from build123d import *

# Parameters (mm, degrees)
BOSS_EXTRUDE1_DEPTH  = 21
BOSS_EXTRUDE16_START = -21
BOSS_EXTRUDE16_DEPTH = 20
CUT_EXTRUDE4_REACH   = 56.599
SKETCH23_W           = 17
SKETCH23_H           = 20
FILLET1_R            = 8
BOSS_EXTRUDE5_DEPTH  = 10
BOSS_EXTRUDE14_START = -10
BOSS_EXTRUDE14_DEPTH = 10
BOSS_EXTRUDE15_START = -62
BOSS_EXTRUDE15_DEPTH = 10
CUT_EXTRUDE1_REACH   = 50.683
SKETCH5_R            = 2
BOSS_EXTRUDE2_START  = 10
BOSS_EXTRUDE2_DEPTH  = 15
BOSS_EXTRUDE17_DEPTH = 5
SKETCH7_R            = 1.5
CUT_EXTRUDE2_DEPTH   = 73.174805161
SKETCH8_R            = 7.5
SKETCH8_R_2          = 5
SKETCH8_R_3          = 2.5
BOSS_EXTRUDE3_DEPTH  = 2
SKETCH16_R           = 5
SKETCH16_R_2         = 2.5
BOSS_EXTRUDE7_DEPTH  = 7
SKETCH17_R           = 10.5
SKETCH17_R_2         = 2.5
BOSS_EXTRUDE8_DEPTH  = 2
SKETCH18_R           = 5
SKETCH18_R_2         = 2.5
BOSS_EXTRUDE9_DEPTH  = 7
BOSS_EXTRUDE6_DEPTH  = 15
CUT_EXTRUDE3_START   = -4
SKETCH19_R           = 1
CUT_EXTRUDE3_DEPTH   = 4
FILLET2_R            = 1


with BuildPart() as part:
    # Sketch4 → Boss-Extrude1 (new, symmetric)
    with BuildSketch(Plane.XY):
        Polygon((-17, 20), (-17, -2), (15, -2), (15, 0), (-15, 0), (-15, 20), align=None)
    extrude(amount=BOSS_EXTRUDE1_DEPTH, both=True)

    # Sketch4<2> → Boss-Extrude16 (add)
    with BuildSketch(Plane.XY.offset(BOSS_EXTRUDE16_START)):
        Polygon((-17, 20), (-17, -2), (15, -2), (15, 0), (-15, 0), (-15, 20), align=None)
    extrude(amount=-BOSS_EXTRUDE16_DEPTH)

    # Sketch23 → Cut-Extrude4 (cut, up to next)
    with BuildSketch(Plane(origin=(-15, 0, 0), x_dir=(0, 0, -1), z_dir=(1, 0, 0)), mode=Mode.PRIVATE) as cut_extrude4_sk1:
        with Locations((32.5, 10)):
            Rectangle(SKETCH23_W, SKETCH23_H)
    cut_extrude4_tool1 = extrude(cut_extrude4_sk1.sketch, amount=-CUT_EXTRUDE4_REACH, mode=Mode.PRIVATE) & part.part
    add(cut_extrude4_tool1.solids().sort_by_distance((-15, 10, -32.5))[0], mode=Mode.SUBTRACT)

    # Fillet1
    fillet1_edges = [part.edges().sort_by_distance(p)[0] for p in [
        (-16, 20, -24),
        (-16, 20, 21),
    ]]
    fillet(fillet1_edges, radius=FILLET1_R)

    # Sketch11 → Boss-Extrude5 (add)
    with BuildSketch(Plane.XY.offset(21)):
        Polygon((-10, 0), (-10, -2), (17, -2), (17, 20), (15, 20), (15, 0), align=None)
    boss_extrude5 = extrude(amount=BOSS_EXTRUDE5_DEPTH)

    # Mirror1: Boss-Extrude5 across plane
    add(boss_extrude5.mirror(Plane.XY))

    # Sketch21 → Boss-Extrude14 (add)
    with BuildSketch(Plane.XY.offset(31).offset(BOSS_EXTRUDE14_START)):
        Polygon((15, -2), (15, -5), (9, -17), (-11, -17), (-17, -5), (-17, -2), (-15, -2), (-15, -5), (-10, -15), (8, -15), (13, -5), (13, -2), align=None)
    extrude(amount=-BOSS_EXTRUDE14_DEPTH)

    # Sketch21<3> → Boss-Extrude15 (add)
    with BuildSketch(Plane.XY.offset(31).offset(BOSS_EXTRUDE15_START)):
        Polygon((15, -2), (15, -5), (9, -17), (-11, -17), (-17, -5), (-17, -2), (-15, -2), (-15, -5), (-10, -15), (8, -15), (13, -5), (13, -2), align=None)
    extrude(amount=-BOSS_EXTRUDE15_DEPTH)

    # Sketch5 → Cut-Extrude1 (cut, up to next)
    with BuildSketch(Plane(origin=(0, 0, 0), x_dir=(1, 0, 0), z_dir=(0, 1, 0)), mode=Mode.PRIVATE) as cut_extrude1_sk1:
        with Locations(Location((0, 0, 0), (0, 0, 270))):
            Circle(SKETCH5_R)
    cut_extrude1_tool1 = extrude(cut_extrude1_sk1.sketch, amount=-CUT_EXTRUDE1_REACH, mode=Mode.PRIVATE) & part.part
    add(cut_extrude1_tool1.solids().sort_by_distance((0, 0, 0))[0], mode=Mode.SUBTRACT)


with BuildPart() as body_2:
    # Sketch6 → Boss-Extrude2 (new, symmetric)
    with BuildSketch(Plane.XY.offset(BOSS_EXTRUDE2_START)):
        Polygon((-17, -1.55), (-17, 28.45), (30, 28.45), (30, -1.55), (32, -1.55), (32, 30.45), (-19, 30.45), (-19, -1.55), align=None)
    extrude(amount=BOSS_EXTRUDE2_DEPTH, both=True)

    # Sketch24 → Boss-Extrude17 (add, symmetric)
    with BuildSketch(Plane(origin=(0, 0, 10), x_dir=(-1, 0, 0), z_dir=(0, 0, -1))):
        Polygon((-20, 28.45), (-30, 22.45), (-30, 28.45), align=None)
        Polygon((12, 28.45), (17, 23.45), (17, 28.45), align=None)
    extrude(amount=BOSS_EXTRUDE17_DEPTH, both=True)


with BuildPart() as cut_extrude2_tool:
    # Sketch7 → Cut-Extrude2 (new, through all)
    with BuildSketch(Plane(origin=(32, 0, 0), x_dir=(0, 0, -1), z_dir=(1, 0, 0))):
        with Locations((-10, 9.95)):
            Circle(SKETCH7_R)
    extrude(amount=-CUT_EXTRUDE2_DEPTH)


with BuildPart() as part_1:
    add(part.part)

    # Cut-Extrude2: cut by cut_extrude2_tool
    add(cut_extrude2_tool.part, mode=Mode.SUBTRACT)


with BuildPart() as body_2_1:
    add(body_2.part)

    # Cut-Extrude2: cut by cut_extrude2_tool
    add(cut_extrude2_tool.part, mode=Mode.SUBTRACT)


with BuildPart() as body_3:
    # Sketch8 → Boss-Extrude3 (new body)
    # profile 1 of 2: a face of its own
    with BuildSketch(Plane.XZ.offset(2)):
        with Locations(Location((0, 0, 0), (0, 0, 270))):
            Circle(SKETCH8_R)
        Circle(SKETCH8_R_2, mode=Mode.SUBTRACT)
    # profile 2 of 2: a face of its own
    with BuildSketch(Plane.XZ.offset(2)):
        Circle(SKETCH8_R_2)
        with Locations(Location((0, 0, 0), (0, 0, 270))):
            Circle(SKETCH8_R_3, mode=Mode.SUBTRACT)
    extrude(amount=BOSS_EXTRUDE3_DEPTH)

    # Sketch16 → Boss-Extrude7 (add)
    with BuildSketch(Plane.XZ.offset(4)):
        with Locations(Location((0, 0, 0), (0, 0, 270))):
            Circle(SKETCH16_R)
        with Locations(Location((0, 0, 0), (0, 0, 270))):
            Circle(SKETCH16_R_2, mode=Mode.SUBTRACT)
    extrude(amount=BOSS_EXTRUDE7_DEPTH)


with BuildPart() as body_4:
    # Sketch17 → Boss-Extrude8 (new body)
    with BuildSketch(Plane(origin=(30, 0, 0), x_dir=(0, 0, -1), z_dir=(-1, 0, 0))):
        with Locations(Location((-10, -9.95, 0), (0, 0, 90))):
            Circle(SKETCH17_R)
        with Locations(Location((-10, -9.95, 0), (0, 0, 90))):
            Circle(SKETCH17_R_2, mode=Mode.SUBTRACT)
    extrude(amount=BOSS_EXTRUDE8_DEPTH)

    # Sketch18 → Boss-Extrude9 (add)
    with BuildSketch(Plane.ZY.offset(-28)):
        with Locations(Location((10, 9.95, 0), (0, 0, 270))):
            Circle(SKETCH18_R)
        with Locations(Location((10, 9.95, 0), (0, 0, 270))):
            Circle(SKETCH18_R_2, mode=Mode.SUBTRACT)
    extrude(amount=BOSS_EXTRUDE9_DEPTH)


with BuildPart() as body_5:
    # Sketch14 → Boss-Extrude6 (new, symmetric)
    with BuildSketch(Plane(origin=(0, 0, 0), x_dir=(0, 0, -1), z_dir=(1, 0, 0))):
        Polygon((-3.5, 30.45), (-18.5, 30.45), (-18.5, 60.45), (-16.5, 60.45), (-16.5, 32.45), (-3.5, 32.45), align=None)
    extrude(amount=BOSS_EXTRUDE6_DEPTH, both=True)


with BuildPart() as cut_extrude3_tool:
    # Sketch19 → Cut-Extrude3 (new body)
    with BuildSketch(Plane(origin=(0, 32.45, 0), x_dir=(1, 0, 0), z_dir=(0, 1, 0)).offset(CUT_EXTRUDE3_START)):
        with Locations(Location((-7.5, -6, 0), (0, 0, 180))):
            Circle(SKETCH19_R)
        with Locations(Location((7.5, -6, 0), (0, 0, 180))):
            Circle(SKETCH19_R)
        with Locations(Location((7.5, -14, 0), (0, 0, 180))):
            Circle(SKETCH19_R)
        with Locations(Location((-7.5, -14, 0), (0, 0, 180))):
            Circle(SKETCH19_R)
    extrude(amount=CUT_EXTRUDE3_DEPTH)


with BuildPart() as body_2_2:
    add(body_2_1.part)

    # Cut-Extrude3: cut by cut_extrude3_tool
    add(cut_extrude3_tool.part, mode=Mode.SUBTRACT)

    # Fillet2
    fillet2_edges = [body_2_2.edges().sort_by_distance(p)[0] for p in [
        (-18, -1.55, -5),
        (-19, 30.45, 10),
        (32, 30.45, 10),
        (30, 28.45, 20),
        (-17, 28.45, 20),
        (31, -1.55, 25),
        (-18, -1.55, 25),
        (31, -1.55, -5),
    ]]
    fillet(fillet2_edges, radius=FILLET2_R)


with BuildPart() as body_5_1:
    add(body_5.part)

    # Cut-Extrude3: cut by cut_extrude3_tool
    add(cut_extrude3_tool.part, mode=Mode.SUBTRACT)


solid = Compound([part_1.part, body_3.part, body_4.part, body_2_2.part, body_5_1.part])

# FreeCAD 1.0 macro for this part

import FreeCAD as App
import Part
import Sketcher

V = App.Vector


def edges_at(feature, points):
    """Names of the edges that pass closest to the given points."""
    edges = feature.Shape.Edges
    near = lambda p: min(range(len(edges)), key=lambda i: edges[i].distToShape(Part.Vertex(*p))[0])
    return sorted({f"Edge{near(p) + 1}" for p in points})

doc = App.newDocument("Part")
body = doc.addObject("PartDesign::Body", "Body")

# Sketch on XY plane
sketch1 = body.newObject("Sketcher::SketchObject", "Sketch")
sketch1.AttachmentSupport = (doc.getObject("XY_Plane"), [""])
sketch1.MapMode = "FlatFace"
sketch1.addGeometry([
    Part.LineSegment(V(-17, 20, 0), V(-17, -2, 0)),  # 0
    Part.LineSegment(V(-17, -2, 0), V(15, -2, 0)),  # 1
    Part.LineSegment(V(15, -2, 0), V(15, 0, 0)),  # 2
    Part.LineSegment(V(15, 0, 0), V(-15, 0, 0)),  # 3
    Part.LineSegment(V(-15, 0, 0), V(-15, 20, 0)),  # 4
    Part.LineSegment(V(-15, 20, 0), V(-17, 20, 0)),  # 5
], False)
sketch1.addConstraint([
    Sketcher.Constraint("Coincident", 0, 2, 1, 1),
    Sketcher.Constraint("Coincident", 1, 2, 2, 1),
    Sketcher.Constraint("Coincident", 2, 2, 3, 1),
    Sketcher.Constraint("Coincident", 3, 2, 4, 1),
    Sketcher.Constraint("Coincident", 4, 2, 5, 1),
    Sketcher.Constraint("Coincident", 5, 2, 0, 1),
    Sketcher.Constraint("Vertical", 0),
    Sketcher.Constraint("Horizontal", 1),
    Sketcher.Constraint("Vertical", 2),
    Sketcher.Constraint("Horizontal", 3),
    Sketcher.Constraint("Vertical", 4),
    Sketcher.Constraint("Horizontal", 5),
    Sketcher.Constraint("Symmetric", 2, 2, 3, 2, -1, 1),
    Sketcher.Constraint("Equal", 5, 2),
    Sketcher.Constraint("DistanceX", 1, 1, 1, 2, 32.0),
    Sketcher.Constraint("DistanceX", 3, 2, 3, 1, 30.0),
    Sketcher.Constraint("DistanceY", 0, 2, 0, 1, 22.0),
])
pad1 = body.newObject("PartDesign::Pad", "Pad")
pad1.Profile = sketch1
pad1.Length = 42
pad1.Midplane = True

# Sketch on XY plane
sketch2 = body.newObject("Sketcher::SketchObject", "Sketch001")
sketch2.AttachmentSupport = (doc.getObject("XY_Plane"), [""])
sketch2.MapMode = "FlatFace"
sketch2.AttachmentOffset = App.Placement(V(0, 0, -21), App.Rotation())
sketch2.addGeometry([
    Part.LineSegment(V(-17, 20, 0), V(-17, -2, 0)),  # 0
    Part.LineSegment(V(-17, -2, 0), V(15, -2, 0)),  # 1
    Part.LineSegment(V(15, -2, 0), V(15, 0, 0)),  # 2
    Part.LineSegment(V(15, 0, 0), V(-15, 0, 0)),  # 3
    Part.LineSegment(V(-15, 0, 0), V(-15, 20, 0)),  # 4
    Part.LineSegment(V(-15, 20, 0), V(-17, 20, 0)),  # 5
], False)
sketch2.addConstraint([
    Sketcher.Constraint("Coincident", 0, 2, 1, 1),
    Sketcher.Constraint("Coincident", 1, 2, 2, 1),
    Sketcher.Constraint("Coincident", 2, 2, 3, 1),
    Sketcher.Constraint("Coincident", 3, 2, 4, 1),
    Sketcher.Constraint("Coincident", 4, 2, 5, 1),
    Sketcher.Constraint("Coincident", 5, 2, 0, 1),
    Sketcher.Constraint("Vertical", 0),
    Sketcher.Constraint("Horizontal", 1),
    Sketcher.Constraint("Vertical", 2),
    Sketcher.Constraint("Horizontal", 3),
    Sketcher.Constraint("Vertical", 4),
    Sketcher.Constraint("Horizontal", 5),
    Sketcher.Constraint("Symmetric", 2, 2, 3, 2, -1, 1),
    Sketcher.Constraint("Equal", 5, 2),
    Sketcher.Constraint("DistanceX", 1, 1, 1, 2, 32.0),
    Sketcher.Constraint("DistanceX", 3, 2, 3, 1, 30.0),
    Sketcher.Constraint("DistanceY", 0, 2, 0, 1, 22.0),
])
pad2 = body.newObject("PartDesign::Pad", "Pad001")
pad2.Profile = sketch2
pad2.Length = 20
pad2.Reversed = True

# Sketch on YZ plane
sketch3 = body.newObject("Sketcher::SketchObject", "Sketch002")
sketch3.AttachmentSupport = (doc.getObject("YZ_Plane"), [""])
sketch3.MapMode = "FlatFace"
sketch3.AttachmentOffset = App.Placement(V(0, 0, -15), App.Rotation())
sketch3.addGeometry([
    Part.LineSegment(V(20, -24, 0), V(0, -24, 0)),
    Part.LineSegment(V(0, -24, 0), V(0, -41, 0)),
    Part.LineSegment(V(0, -41, 0), V(20, -41, 0)),
    Part.LineSegment(V(20, -41, 0), V(20, -24, 0)),
], False)
sketch3.addConstraint([
    Sketcher.Constraint("Coincident", 0, 2, 1, 1),
    Sketcher.Constraint("Coincident", 1, 2, 2, 1),
    Sketcher.Constraint("Coincident", 2, 2, 3, 1),
    Sketcher.Constraint("Coincident", 3, 2, 0, 1),
    Sketcher.Constraint("Horizontal", 0),
    Sketcher.Constraint("Vertical", 1),
    Sketcher.Constraint("Horizontal", 2),
    Sketcher.Constraint("Vertical", 3),
    Sketcher.Constraint("PointOnObject", 0, 2, -2),
    Sketcher.Constraint("DistanceX", 0, 2, 0, 1, 20.0),
    Sketcher.Constraint("DistanceY", 1, 2, 1, 1, 17.0),
    Sketcher.Constraint("DistanceY", 0, 2, -1, 1, 24.0),
])
pocket1 = body.newObject("PartDesign::Pocket", "Pocket")
pocket1.Profile = sketch3
pocket1.Type = "UpToFirst"
doc.recompute()

fillet = body.newObject("PartDesign::Fillet", "Fillet")
fillet.Base = (pocket1, edges_at(pocket1, [(-16, 20, -24), (-16, 20, 21)]))
fillet.Radius = 8

# Sketch on XY plane
sketch4 = body.newObject("Sketcher::SketchObject", "Sketch003")
sketch4.AttachmentSupport = (doc.getObject("XY_Plane"), [""])
sketch4.MapMode = "FlatFace"
sketch4.AttachmentOffset = App.Placement(V(0, 0, 21), App.Rotation())
sketch4.addGeometry([
    Part.LineSegment(V(-10, 0, 0), V(-10, -2, 0)),  # 0
    Part.LineSegment(V(-10, -2, 0), V(17, -2, 0)),  # 1
    Part.LineSegment(V(17, -2, 0), V(17, 20, 0)),  # 2
    Part.LineSegment(V(17, 20, 0), V(15, 20, 0)),  # 3
    Part.LineSegment(V(15, 20, 0), V(15, 0, 0)),  # 4
    Part.LineSegment(V(15, 0, 0), V(-10, 0, 0)),  # 5
], False)
sketch4.addConstraint([
    Sketcher.Constraint("Coincident", 0, 2, 1, 1),
    Sketcher.Constraint("Coincident", 1, 2, 2, 1),
    Sketcher.Constraint("Coincident", 2, 2, 3, 1),
    Sketcher.Constraint("Coincident", 3, 2, 4, 1),
    Sketcher.Constraint("Coincident", 4, 2, 5, 1),
    Sketcher.Constraint("Coincident", 5, 2, 0, 1),
    Sketcher.Constraint("Vertical", 0),
    Sketcher.Constraint("Horizontal", 1),
    Sketcher.Constraint("Vertical", 2),
    Sketcher.Constraint("Horizontal", 3),
    Sketcher.Constraint("Vertical", 4),
    Sketcher.Constraint("Horizontal", 5),
    Sketcher.Constraint("PointOnObject", 4, 2, -1),
    Sketcher.Constraint("Equal", 3, 0),
    Sketcher.Constraint("DistanceX", 1, 1, 1, 2, 27.0),
    Sketcher.Constraint("DistanceX", 3, 2, 3, 1, 2.0),
    Sketcher.Constraint("DistanceY", 2, 1, 2, 2, 22.0),
    Sketcher.Constraint("DistanceX", 0, 2, -1, 1, 10.0),
])
pad3 = body.newObject("PartDesign::Pad", "Pad002")
pad3.Profile = sketch4
pad3.Length = 10
doc.recompute()

mirrored = body.newObject("PartDesign::Mirrored", "Mirrored")
mirrored.Originals = [pad3]
mirrored.MirrorPlane = (doc.getObject("XY_Plane"), [""])
body.Tip = mirrored

# Sketch on XY plane
sketch5 = body.newObject("Sketcher::SketchObject", "Sketch004")
sketch5.AttachmentSupport = (doc.getObject("XY_Plane"), [""])
sketch5.MapMode = "FlatFace"
sketch5.AttachmentOffset = App.Placement(V(0, 0, 21), App.Rotation())
sketch5.addGeometry([
    Part.LineSegment(V(15, -5, 0), V(15, -2, 0)),  # 0
    Part.LineSegment(V(15, -2, 0), V(13, -2, 0)),  # 1
    Part.LineSegment(V(13, -2, 0), V(13, -5, 0)),  # 2
    Part.LineSegment(V(13, -5, 0), V(8, -15, 0)),  # 3
    Part.LineSegment(V(8, -15, 0), V(-10, -15, 0)),  # 4
    Part.LineSegment(V(-10, -15, 0), V(-15, -5, 0)),  # 5
    Part.LineSegment(V(-15, -5, 0), V(-15, -2, 0)),  # 6
    Part.LineSegment(V(-15, -2, 0), V(-17, -2, 0)),  # 7
    Part.LineSegment(V(-17, -2, 0), V(-17, -5, 0)),  # 8
    Part.LineSegment(V(-17, -5, 0), V(-11, -17, 0)),  # 9
    Part.LineSegment(V(-11, -17, 0), V(9, -17, 0)),  # 10
    Part.LineSegment(V(9, -17, 0), V(15, -5, 0)),  # 11
], False)
sketch5.addConstraint([
    Sketcher.Constraint("Coincident", 0, 2, 1, 1),
    Sketcher.Constraint("Coincident", 1, 2, 2, 1),
    Sketcher.Constraint("Coincident", 2, 2, 3, 1),
    Sketcher.Constraint("Coincident", 3, 2, 4, 1),
    Sketcher.Constraint("Coincident", 4, 2, 5, 1),
    Sketcher.Constraint("Coincident", 5, 2, 6, 1),
    Sketcher.Constraint("Coincident", 6, 2, 7, 1),
    Sketcher.Constraint("Coincident", 7, 2, 8, 1),
    Sketcher.Constraint("Coincident", 8, 2, 9, 1),
    Sketcher.Constraint("Coincident", 9, 2, 10, 1),
    Sketcher.Constraint("Coincident", 10, 2, 11, 1),
    Sketcher.Constraint("Coincident", 11, 2, 0, 1),
    Sketcher.Constraint("Vertical", 0),
    Sketcher.Constraint("Horizontal", 1),
    Sketcher.Constraint("Vertical", 2),
    Sketcher.Constraint("Horizontal", 4),
    Sketcher.Constraint("Vertical", 6),
    Sketcher.Constraint("Horizontal", 7),
    Sketcher.Constraint("Vertical", 8),
    Sketcher.Constraint("Horizontal", 10),
    Sketcher.Constraint("Symmetric", 0, 2, 6, 2, -2),
    Sketcher.Constraint("Parallel", 5, 9),
    Sketcher.Constraint("Parallel", 3, 11),
    Sketcher.Constraint("Horizontal", 2, 2, 5, 2),
    Sketcher.Constraint("Horizontal", 5, 2, 8, 2),
    Sketcher.Constraint("Horizontal", 8, 2, 11, 2),
    Sketcher.Constraint("Equal", 1, 7),
    Sketcher.Constraint("Equal", 3, 5),
    Sketcher.Constraint("DistanceX", 1, 2, 1, 1, 2.0),
    Sketcher.Constraint("DistanceX", 4, 2, 4, 1, 18.0),
    Sketcher.Constraint("DistanceX", 10, 1, 10, 2, 20.0),
    Sketcher.Constraint("DistanceY", 0, 1, 0, 2, 3.0),
    Sketcher.Constraint("DistanceX", -1, 1, 0, 2, 15.0),
    Sketcher.Constraint("DistanceY", 0, 2, -1, 1, 2.0),
    Sketcher.Constraint("DistanceY", 3, 2, -1, 1, 15.0),
])
pad4 = body.newObject("PartDesign::Pad", "Pad003")
pad4.Profile = sketch5
pad4.Length = 10
pad4.Reversed = True

# Sketch on XY plane
sketch6 = body.newObject("Sketcher::SketchObject", "Sketch005")
sketch6.AttachmentSupport = (doc.getObject("XY_Plane"), [""])
sketch6.MapMode = "FlatFace"
sketch6.AttachmentOffset = App.Placement(V(0, 0, -31), App.Rotation())
sketch6.addGeometry([
    Part.LineSegment(V(15, -5, 0), V(15, -2, 0)),  # 0
    Part.LineSegment(V(15, -2, 0), V(13, -2, 0)),  # 1
    Part.LineSegment(V(13, -2, 0), V(13, -5, 0)),  # 2
    Part.LineSegment(V(13, -5, 0), V(8, -15, 0)),  # 3
    Part.LineSegment(V(8, -15, 0), V(-10, -15, 0)),  # 4
    Part.LineSegment(V(-10, -15, 0), V(-15, -5, 0)),  # 5
    Part.LineSegment(V(-15, -5, 0), V(-15, -2, 0)),  # 6
    Part.LineSegment(V(-15, -2, 0), V(-17, -2, 0)),  # 7
    Part.LineSegment(V(-17, -2, 0), V(-17, -5, 0)),  # 8
    Part.LineSegment(V(-17, -5, 0), V(-11, -17, 0)),  # 9
    Part.LineSegment(V(-11, -17, 0), V(9, -17, 0)),  # 10
    Part.LineSegment(V(9, -17, 0), V(15, -5, 0)),  # 11
], False)
sketch6.addConstraint([
    Sketcher.Constraint("Coincident", 0, 2, 1, 1),
    Sketcher.Constraint("Coincident", 1, 2, 2, 1),
    Sketcher.Constraint("Coincident", 2, 2, 3, 1),
    Sketcher.Constraint("Coincident", 3, 2, 4, 1),
    Sketcher.Constraint("Coincident", 4, 2, 5, 1),
    Sketcher.Constraint("Coincident", 5, 2, 6, 1),
    Sketcher.Constraint("Coincident", 6, 2, 7, 1),
    Sketcher.Constraint("Coincident", 7, 2, 8, 1),
    Sketcher.Constraint("Coincident", 8, 2, 9, 1),
    Sketcher.Constraint("Coincident", 9, 2, 10, 1),
    Sketcher.Constraint("Coincident", 10, 2, 11, 1),
    Sketcher.Constraint("Coincident", 11, 2, 0, 1),
    Sketcher.Constraint("Vertical", 0),
    Sketcher.Constraint("Horizontal", 1),
    Sketcher.Constraint("Vertical", 2),
    Sketcher.Constraint("Horizontal", 4),
    Sketcher.Constraint("Vertical", 6),
    Sketcher.Constraint("Horizontal", 7),
    Sketcher.Constraint("Vertical", 8),
    Sketcher.Constraint("Horizontal", 10),
    Sketcher.Constraint("Symmetric", 0, 2, 6, 2, -2),
    Sketcher.Constraint("Parallel", 5, 9),
    Sketcher.Constraint("Parallel", 3, 11),
    Sketcher.Constraint("Horizontal", 2, 2, 5, 2),
    Sketcher.Constraint("Horizontal", 5, 2, 8, 2),
    Sketcher.Constraint("Horizontal", 8, 2, 11, 2),
    Sketcher.Constraint("Equal", 1, 7),
    Sketcher.Constraint("Equal", 3, 5),
    Sketcher.Constraint("DistanceX", 1, 2, 1, 1, 2.0),
    Sketcher.Constraint("DistanceX", 4, 2, 4, 1, 18.0),
    Sketcher.Constraint("DistanceX", 10, 1, 10, 2, 20.0),
    Sketcher.Constraint("DistanceY", 0, 1, 0, 2, 3.0),
    Sketcher.Constraint("DistanceX", -1, 1, 0, 2, 15.0),
    Sketcher.Constraint("DistanceY", 0, 2, -1, 1, 2.0),
    Sketcher.Constraint("DistanceY", 3, 2, -1, 1, 15.0),
])
pad5 = body.newObject("PartDesign::Pad", "Pad004")
pad5.Profile = sketch6
pad5.Length = 10
pad5.Reversed = True

# Sketch on XZ plane
sketch7 = body.newObject("Sketcher::SketchObject", "Sketch006")
sketch7.AttachmentSupport = (doc.getObject("XZ_Plane"), [""])
sketch7.MapMode = "FlatFace"
sketch7.addGeometry(Part.Circle(V(0, 0, 0), V(0, 0, 1), 2), False)
sketch7.addConstraint([
    Sketcher.Constraint("Coincident", 0, 3, -1, 1),
    Sketcher.Constraint("Diameter", 0, 4.0),
])
pocket2 = body.newObject("PartDesign::Pocket", "Pocket001")
pocket2.Profile = sketch7
pocket2.Type = "UpToFirst"
pocket2.Reversed = True
body2 = doc.addObject("PartDesign::Body", "Body001")

# Sketch on XY plane
sketch8 = body2.newObject("Sketcher::SketchObject", "Sketch007")
sketch8.AttachmentSupport = (doc.getObject("XY_Plane001"), [""])
sketch8.MapMode = "FlatFace"
sketch8.AttachmentOffset = App.Placement(V(0, 0, 10), App.Rotation())
sketch8.addGeometry([
    Part.LineSegment(V(-17, -1.6, 0), V(-17, 28.4, 0)),  # 0
    Part.LineSegment(V(-17, 28.4, 0), V(30, 28.4, 0)),  # 1
    Part.LineSegment(V(30, 28.4, 0), V(30, -1.6, 0)),  # 2
    Part.LineSegment(V(30, -1.6, 0), V(32, -1.6, 0)),  # 3
    Part.LineSegment(V(32, -1.6, 0), V(32, 30.4, 0)),  # 4
    Part.LineSegment(V(32, 30.4, 0), V(-19, 30.4, 0)),  # 5
    Part.LineSegment(V(-19, 30.4, 0), V(-19, -1.6, 0)),  # 6
    Part.LineSegment(V(-19, -1.6, 0), V(-17, -1.6, 0)),  # 7
], False)
sketch8.addConstraint([
    Sketcher.Constraint("Coincident", 0, 2, 1, 1),
    Sketcher.Constraint("Coincident", 1, 2, 2, 1),
    Sketcher.Constraint("Coincident", 2, 2, 3, 1),
    Sketcher.Constraint("Coincident", 3, 2, 4, 1),
    Sketcher.Constraint("Coincident", 4, 2, 5, 1),
    Sketcher.Constraint("Coincident", 5, 2, 6, 1),
    Sketcher.Constraint("Coincident", 6, 2, 7, 1),
    Sketcher.Constraint("Coincident", 7, 2, 0, 1),
    Sketcher.Constraint("Vertical", 0),
    Sketcher.Constraint("Horizontal", 1),
    Sketcher.Constraint("Vertical", 2),
    Sketcher.Constraint("Horizontal", 3),
    Sketcher.Constraint("Vertical", 4),
    Sketcher.Constraint("Horizontal", 5),
    Sketcher.Constraint("Vertical", 6),
    Sketcher.Constraint("Horizontal", 7),
    Sketcher.Constraint("Horizontal", 3, 2, 6, 2),
    Sketcher.Constraint("Equal", 3, 7),
    Sketcher.Constraint("DistanceX", 1, 1, 1, 2, 47.0),
    Sketcher.Constraint("DistanceX", 3, 1, 3, 2, 2.0),
    Sketcher.Constraint("DistanceY", 0, 1, 0, 2, 30.0),
    Sketcher.Constraint("DistanceY", 4, 1, 4, 2, 32.0),
    Sketcher.Constraint("DistanceX", 0, 2, -1, 1, 17.0),
    Sketcher.Constraint("DistanceY", -1, 1, 0, 2, 28.45),
])
pad6 = body2.newObject("PartDesign::Pad", "Pad005")
pad6.Profile = sketch8
pad6.Length = 30
pad6.Midplane = True

# Sketch on XY plane
sketch9 = body2.newObject("Sketcher::SketchObject", "Sketch008")
sketch9.AttachmentSupport = (doc.getObject("XY_Plane001"), [""])
sketch9.MapMode = "FlatFace"
sketch9.AttachmentOffset = App.Placement(V(0, 0, 10), App.Rotation())
sketch9.addGeometry([
    Part.LineSegment(V(30, 22, 0), V(20, 28, 0)),  # 0
    Part.LineSegment(V(20, 28, 0), V(30, 28, 0)),  # 1
    Part.LineSegment(V(30, 28, 0), V(30, 22, 0)),  # 2
    Part.LineSegment(V(-12, 28, 0), V(-17, 23, 0)),  # 3
    Part.LineSegment(V(-17, 23, 0), V(-17, 28, 0)),  # 4
    Part.LineSegment(V(-17, 28, 0), V(-12, 28, 0)),  # 5
], False)
sketch9.addConstraint([
    Sketcher.Constraint("Coincident", 0, 2, 1, 1),
    Sketcher.Constraint("Coincident", 1, 2, 2, 1),
    Sketcher.Constraint("Coincident", 2, 2, 0, 1),
    Sketcher.Constraint("Coincident", 3, 2, 4, 1),
    Sketcher.Constraint("Coincident", 4, 2, 5, 1),
    Sketcher.Constraint("Coincident", 5, 2, 3, 1),
    Sketcher.Constraint("Horizontal", 1),
    Sketcher.Constraint("Vertical", 2),
    Sketcher.Constraint("Vertical", 4),
    Sketcher.Constraint("Horizontal", 5),
    Sketcher.Constraint("Horizontal", 1, 2, 4, 2),
    Sketcher.Constraint("Equal", 5, 4),
    Sketcher.Constraint("DistanceX", 1, 1, 1, 2, 10.0),
    Sketcher.Constraint("DistanceX", 5, 1, 5, 2, 5.0),
    Sketcher.Constraint("DistanceY", 2, 2, 2, 1, 6.0),
    Sketcher.Constraint("DistanceX", -1, 1, 0, 2, 20.0),
    Sketcher.Constraint("DistanceX", 3, 2, -1, 1, 17.0),
    Sketcher.Constraint("DistanceY", -1, 1, 0, 2, 28.45),
])
pad7 = body2.newObject("PartDesign::Pad", "Pad006")
pad7.Profile = sketch9
pad7.Length = 10
pad7.Midplane = True
body3 = doc.addObject("PartDesign::Body", "Body002")

# Sketch on YZ plane
sketch10 = body3.newObject("Sketcher::SketchObject", "Sketch009")
sketch10.AttachmentSupport = (doc.getObject("YZ_Plane002"), [""])
sketch10.MapMode = "FlatFace"
sketch10.AttachmentOffset = App.Placement(V(0, 0, 32), App.Rotation())
sketch10.addGeometry(Part.Circle(V(9.9, 10, 0), V(0, 0, 1), 1.5), False)
sketch10.addConstraint([
    Sketcher.Constraint("Diameter", 0, 3.0),
    Sketcher.Constraint("DistanceY", -1, 1, 0, 3, 10.0),
    Sketcher.Constraint("DistanceX", -1, 1, 0, 3, 9.95),
])
pad8 = body3.newObject("PartDesign::Pad", "Pad007")
pad8.Profile = sketch10
pad8.Length = 73.174805
pad8.Reversed = True
doc.recompute()

body4 = doc.addObject("PartDesign::Body", "Body003")
body4.BaseFeature = body3
boolean = body.newObject("PartDesign::Boolean", "Boolean")
boolean.Type = "Cut"
boolean.addObjects([body4])
doc.recompute()

boolean2 = body2.newObject("PartDesign::Boolean", "Boolean001")
boolean2.Type = "Cut"
boolean2.addObjects([body3])
body5 = doc.addObject("PartDesign::Body", "Body004")

# Sketch on XZ plane
sketch11 = body5.newObject("Sketcher::SketchObject", "Sketch010")
sketch11.AttachmentSupport = (doc.getObject("XZ_Plane004"), [""])
sketch11.MapMode = "FlatFace"
sketch11.AttachmentOffset = App.Placement(V(0, 0, 2), App.Rotation())
sketch11.addGeometry([
    Part.Circle(V(0, 0, 0), V(0, 0, 1), 7.5),
    Part.Circle(V(0, 0, 0), V(0, 0, 1), 2.5),
], False)
sketch11.addConstraint([
    Sketcher.Constraint("Coincident", 0, 3, -1, 1),
    Sketcher.Constraint("Coincident", 1, 3, -1, 1),
    Sketcher.Constraint("Diameter", 0, 15.0),
    Sketcher.Constraint("Diameter", 1, 5.0),
])
pad9 = body5.newObject("PartDesign::Pad", "Pad008")
pad9.Profile = sketch11
pad9.Length = 2

# Sketch on XZ plane
sketch12 = body5.newObject("Sketcher::SketchObject", "Sketch011")
sketch12.AttachmentSupport = (doc.getObject("XZ_Plane004"), [""])
sketch12.MapMode = "FlatFace"
sketch12.AttachmentOffset = App.Placement(V(0, 0, 4), App.Rotation())
sketch12.addGeometry([
    Part.Circle(V(0, 0, 0), V(0, 0, 1), 5),
    Part.Circle(V(0, 0, 0), V(0, 0, 1), 2.5),
], False)
sketch12.addConstraint([
    Sketcher.Constraint("Coincident", 0, 3, -1, 1),
    Sketcher.Constraint("Coincident", 1, 3, -1, 1),
    Sketcher.Constraint("Diameter", 0, 10.0),
    Sketcher.Constraint("Diameter", 1, 5.0),
])
pad10 = body5.newObject("PartDesign::Pad", "Pad009")
pad10.Profile = sketch12
pad10.Length = 7
body6 = doc.addObject("PartDesign::Body", "Body005")

# Sketch on YZ plane
sketch13 = body6.newObject("Sketcher::SketchObject", "Sketch012")
sketch13.AttachmentSupport = (doc.getObject("YZ_Plane005"), [""])
sketch13.MapMode = "FlatFace"
sketch13.AttachmentOffset = App.Placement(V(0, 0, 30), App.Rotation())
sketch13.addGeometry([
    Part.Circle(V(9.9, 10, 0), V(0, 0, 1), 10.5),
    Part.Circle(V(9.9, 10, 0), V(0, 0, 1), 2.5),
], False)
sketch13.addConstraint([
    Sketcher.Constraint("Coincident", 1, 3, 0, 3),
    Sketcher.Constraint("Diameter", 0, 21.0),
    Sketcher.Constraint("Diameter", 1, 5.0),
    Sketcher.Constraint("DistanceY", -1, 1, 0, 3, 10.0),
    Sketcher.Constraint("DistanceX", -1, 1, 0, 3, 9.95),
])
pad11 = body6.newObject("PartDesign::Pad", "Pad010")
pad11.Profile = sketch13
pad11.Length = 2
pad11.Reversed = True

# Sketch on YZ plane
sketch14 = body6.newObject("Sketcher::SketchObject", "Sketch013")
sketch14.AttachmentSupport = (doc.getObject("YZ_Plane005"), [""])
sketch14.MapMode = "FlatFace"
sketch14.AttachmentOffset = App.Placement(V(0, 0, 28), App.Rotation())
sketch14.addGeometry([
    Part.Circle(V(9.9, 10, 0), V(0, 0, 1), 5),
    Part.Circle(V(9.9, 10, 0), V(0, 0, 1), 2.5),
], False)
sketch14.addConstraint([
    Sketcher.Constraint("Coincident", 1, 3, 0, 3),
    Sketcher.Constraint("Diameter", 0, 10.0),
    Sketcher.Constraint("Diameter", 1, 5.0),
    Sketcher.Constraint("DistanceY", -1, 1, 0, 3, 10.0),
    Sketcher.Constraint("DistanceX", -1, 1, 0, 3, 9.95),
])
pad12 = body6.newObject("PartDesign::Pad", "Pad011")
pad12.Profile = sketch14
pad12.Length = 7
pad12.Reversed = True
body7 = doc.addObject("PartDesign::Body", "Body006")

# Sketch on YZ plane
sketch15 = body7.newObject("Sketcher::SketchObject", "Sketch014")
sketch15.AttachmentSupport = (doc.getObject("YZ_Plane006"), [""])
sketch15.MapMode = "FlatFace"
sketch15.addGeometry([
    Part.LineSegment(V(30.4, 18.5, 0), V(30.4, 3.5, 0)),  # 0
    Part.LineSegment(V(30.4, 3.5, 0), V(32.5, 3.5, 0)),  # 1
    Part.LineSegment(V(32.5, 3.5, 0), V(32.5, 16.5, 0)),  # 2
    Part.LineSegment(V(32.5, 16.5, 0), V(60.5, 16.5, 0)),  # 3
    Part.LineSegment(V(60.5, 16.5, 0), V(60.5, 18.5, 0)),  # 4
    Part.LineSegment(V(60.5, 18.5, 0), V(30.4, 18.5, 0)),  # 5
], False)
sketch15.addConstraint([
    Sketcher.Constraint("Coincident", 0, 2, 1, 1),
    Sketcher.Constraint("Coincident", 1, 2, 2, 1),
    Sketcher.Constraint("Coincident", 2, 2, 3, 1),
    Sketcher.Constraint("Coincident", 3, 2, 4, 1),
    Sketcher.Constraint("Coincident", 4, 2, 5, 1),
    Sketcher.Constraint("Coincident", 5, 2, 0, 1),
    Sketcher.Constraint("Vertical", 0),
    Sketcher.Constraint("Horizontal", 1),
    Sketcher.Constraint("Vertical", 2),
    Sketcher.Constraint("Horizontal", 3),
    Sketcher.Constraint("Vertical", 4),
    Sketcher.Constraint("Horizontal", 5),
    Sketcher.Constraint("Equal", 1, 4),
    Sketcher.Constraint("DistanceX", 1, 1, 1, 2, 2.0),
    Sketcher.Constraint("DistanceX", 3, 1, 3, 2, 28.0),
    Sketcher.Constraint("DistanceY", 0, 2, 0, 1, 15.0),
    Sketcher.Constraint("DistanceY", -1, 1, 0, 2, 3.5),
    Sketcher.Constraint("DistanceX", -1, 1, 0, 2, 30.45),
])
pad13 = body7.newObject("PartDesign::Pad", "Pad012")
pad13.Profile = sketch15
pad13.Length = 30
pad13.Midplane = True
body8 = doc.addObject("PartDesign::Body", "Body007")
body8.AllowCompound = True

# Sketch on XZ plane
sketch16 = body8.newObject("Sketcher::SketchObject", "Sketch015")
sketch16.AttachmentSupport = (doc.getObject("XZ_Plane007"), [""])
sketch16.MapMode = "FlatFace"
sketch16.AttachmentOffset = App.Placement(V(0, 0, -28.45), App.Rotation())
sketch16.addGeometry([
    Part.Circle(V(-7.5, 6, 0), V(0, 0, 1), 1),
    Part.Circle(V(7.5, 6, 0), V(0, 0, 1), 1),
    Part.Circle(V(7.5, 14, 0), V(0, 0, 1), 1),
    Part.Circle(V(-7.5, 14, 0), V(0, 0, 1), 1),
], False)
sketch16.addConstraint([
    Sketcher.Constraint("Equal", 0, 1),
    Sketcher.Constraint("Equal", 1, 2),
    Sketcher.Constraint("Equal", 2, 3),
    Sketcher.Constraint("Symmetric", 0, 3, 1, 3, -2),
    Sketcher.Constraint("Symmetric", 2, 3, 3, 3, -2),
    Sketcher.Constraint("Vertical", 1, 3, 2, 3),
    Sketcher.Constraint("Diameter", 0, 2.0),
    Sketcher.Constraint("DistanceY", -1, 1, 0, 3, 6.0),
    Sketcher.Constraint("DistanceY", -1, 1, 2, 3, 14.0),
    Sketcher.Constraint("DistanceX", 0, 3, 1, 3, 15.0),
])
pad14 = body8.newObject("PartDesign::Pad", "Pad013")
pad14.Profile = sketch16
pad14.Length = 4
pad14.Reversed = True
doc.recompute()

body9 = doc.addObject("PartDesign::Body", "Body008")
body9.BaseFeature = body8
boolean3 = body2.newObject("PartDesign::Boolean", "Boolean002")
boolean3.Type = "Cut"
boolean3.addObjects([body9])
doc.recompute()

fillet2 = body2.newObject("PartDesign::Fillet", "Fillet001")
fillet2.Base = (boolean3, edges_at(boolean3, [
    (-18, -1.55, -5),
    (-19, 30.45, 10),
    (32, 30.45, 10),
    (30, 28.45, 20),
    (-17, 28.45, 20),
    (31, -1.55, 25),
    (-18, -1.55, 25),
    (31, -1.55, -5),
]))
fillet2.Radius = 1
doc.recompute()

boolean4 = body7.newObject("PartDesign::Boolean", "Boolean003")
boolean4.Type = "Cut"
boolean4.addObjects([body8])

doc.recompute()
